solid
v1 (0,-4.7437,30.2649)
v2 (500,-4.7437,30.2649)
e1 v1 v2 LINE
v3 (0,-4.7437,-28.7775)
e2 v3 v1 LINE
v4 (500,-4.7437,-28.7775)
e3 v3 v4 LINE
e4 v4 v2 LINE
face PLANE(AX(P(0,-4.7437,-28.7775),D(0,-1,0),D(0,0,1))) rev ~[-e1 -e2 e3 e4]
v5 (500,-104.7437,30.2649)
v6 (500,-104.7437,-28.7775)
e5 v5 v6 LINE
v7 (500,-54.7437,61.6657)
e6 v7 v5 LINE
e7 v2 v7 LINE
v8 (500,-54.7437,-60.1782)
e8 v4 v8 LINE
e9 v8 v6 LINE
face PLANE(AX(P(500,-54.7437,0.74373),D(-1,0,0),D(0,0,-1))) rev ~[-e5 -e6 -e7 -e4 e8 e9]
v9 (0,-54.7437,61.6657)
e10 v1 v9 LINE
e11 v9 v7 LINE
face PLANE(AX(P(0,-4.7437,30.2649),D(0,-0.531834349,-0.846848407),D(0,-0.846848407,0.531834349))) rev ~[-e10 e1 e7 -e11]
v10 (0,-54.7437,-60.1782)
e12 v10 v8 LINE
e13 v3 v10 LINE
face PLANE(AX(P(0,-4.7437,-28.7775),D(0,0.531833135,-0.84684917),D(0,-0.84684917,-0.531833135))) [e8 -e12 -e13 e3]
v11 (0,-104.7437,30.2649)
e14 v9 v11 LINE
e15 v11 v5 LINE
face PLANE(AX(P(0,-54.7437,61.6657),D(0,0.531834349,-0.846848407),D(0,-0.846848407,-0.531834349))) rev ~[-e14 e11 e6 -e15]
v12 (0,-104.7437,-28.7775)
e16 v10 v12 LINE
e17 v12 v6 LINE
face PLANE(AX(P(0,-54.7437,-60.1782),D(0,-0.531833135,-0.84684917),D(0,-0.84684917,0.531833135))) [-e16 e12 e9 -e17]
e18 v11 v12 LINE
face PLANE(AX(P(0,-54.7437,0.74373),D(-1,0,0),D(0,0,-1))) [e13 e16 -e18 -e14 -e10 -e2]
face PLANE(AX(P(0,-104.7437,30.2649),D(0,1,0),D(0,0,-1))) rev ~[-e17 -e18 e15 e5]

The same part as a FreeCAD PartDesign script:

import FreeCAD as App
import Part
import Sketcher
Q = App.Units.Quantity

doc = App.newDocument("Part")
body = doc.addObject("PartDesign::Body", "Body")

# Sketch on YZ plane
sketch1 = doc.addObject("Sketcher::SketchObject", "Sketch")
body.addObject(sketch1)
sketch1.AttachmentSupport = (doc.YZ_Plane, [""])
sketch1.MapMode = "FlatFace"
sketch1.addGeometry([
    Part.LineSegment(App.Vector(-55, -60, 0), App.Vector(-5, -29, 0)),  # 0
    Part.LineSegment(App.Vector(-5, -29, 0), App.Vector(-5, 30, 0)),  # 1
    Part.LineSegment(App.Vector(-5, 30, 0), App.Vector(-55, 62, 0)),  # 2
    Part.LineSegment(App.Vector(-55, 62, 0), App.Vector(-105, 30, 0)),  # 3
    Part.LineSegment(App.Vector(-105, 30, 0), App.Vector(-105, -29, 0)),  # 4
    Part.LineSegment(App.Vector(-105, -29, 0), App.Vector(-55, -60, 0)),  # 5
], False)
sketch1.addConstraint([
    Sketcher.Constraint("Coincident", 0, 2, 1, 1),
    Sketcher.Constraint("Coincident", 1, 2, 2, 1),
    Sketcher.Constraint("Coincident", 2, 2, 3, 1),
    Sketcher.Constraint("Coincident", 3, 2, 4, 1),
    Sketcher.Constraint("Coincident", 4, 2, 5, 1),
    Sketcher.Constraint("Coincident", 5, 2, 0, 1),
    Sketcher.Constraint("Vertical", 1),
    Sketcher.Constraint("Vertical", 4),
    Sketcher.Constraint("Parallel", 0, 3),
    Sketcher.Constraint("Parallel", 2, 5),
    Sketcher.Constraint("Horizontal", 1, 2, 3, 2),
    Sketcher.Constraint("Horizontal", 0, 2, 4, 2),
    Sketcher.Constraint("Vertical", 2, 2, 5, 2),
    Sketcher.Constraint("DistanceX", 2, 2, 1, 2, Q("50 mm")),
    Sketcher.Constraint("Angle", 0, Q("32.1294 deg")),
    Sketcher.Constraint("DistanceY", 1, 1, 1, 2, Q("59.0424 mm")),
    Sketcher.Constraint("DistanceY", -1, 1, 1, 2, Q("30.265 mm")),
    Sketcher.Constraint("DistanceX", 0, 2, -1, 1, Q("4.7437 mm")),
])
pad1 = doc.addObject("PartDesign::Pad", "Pad")
body.addObject(pad1)
pad1.Profile = sketch1
pad1.Length = 500

doc.recompute()
